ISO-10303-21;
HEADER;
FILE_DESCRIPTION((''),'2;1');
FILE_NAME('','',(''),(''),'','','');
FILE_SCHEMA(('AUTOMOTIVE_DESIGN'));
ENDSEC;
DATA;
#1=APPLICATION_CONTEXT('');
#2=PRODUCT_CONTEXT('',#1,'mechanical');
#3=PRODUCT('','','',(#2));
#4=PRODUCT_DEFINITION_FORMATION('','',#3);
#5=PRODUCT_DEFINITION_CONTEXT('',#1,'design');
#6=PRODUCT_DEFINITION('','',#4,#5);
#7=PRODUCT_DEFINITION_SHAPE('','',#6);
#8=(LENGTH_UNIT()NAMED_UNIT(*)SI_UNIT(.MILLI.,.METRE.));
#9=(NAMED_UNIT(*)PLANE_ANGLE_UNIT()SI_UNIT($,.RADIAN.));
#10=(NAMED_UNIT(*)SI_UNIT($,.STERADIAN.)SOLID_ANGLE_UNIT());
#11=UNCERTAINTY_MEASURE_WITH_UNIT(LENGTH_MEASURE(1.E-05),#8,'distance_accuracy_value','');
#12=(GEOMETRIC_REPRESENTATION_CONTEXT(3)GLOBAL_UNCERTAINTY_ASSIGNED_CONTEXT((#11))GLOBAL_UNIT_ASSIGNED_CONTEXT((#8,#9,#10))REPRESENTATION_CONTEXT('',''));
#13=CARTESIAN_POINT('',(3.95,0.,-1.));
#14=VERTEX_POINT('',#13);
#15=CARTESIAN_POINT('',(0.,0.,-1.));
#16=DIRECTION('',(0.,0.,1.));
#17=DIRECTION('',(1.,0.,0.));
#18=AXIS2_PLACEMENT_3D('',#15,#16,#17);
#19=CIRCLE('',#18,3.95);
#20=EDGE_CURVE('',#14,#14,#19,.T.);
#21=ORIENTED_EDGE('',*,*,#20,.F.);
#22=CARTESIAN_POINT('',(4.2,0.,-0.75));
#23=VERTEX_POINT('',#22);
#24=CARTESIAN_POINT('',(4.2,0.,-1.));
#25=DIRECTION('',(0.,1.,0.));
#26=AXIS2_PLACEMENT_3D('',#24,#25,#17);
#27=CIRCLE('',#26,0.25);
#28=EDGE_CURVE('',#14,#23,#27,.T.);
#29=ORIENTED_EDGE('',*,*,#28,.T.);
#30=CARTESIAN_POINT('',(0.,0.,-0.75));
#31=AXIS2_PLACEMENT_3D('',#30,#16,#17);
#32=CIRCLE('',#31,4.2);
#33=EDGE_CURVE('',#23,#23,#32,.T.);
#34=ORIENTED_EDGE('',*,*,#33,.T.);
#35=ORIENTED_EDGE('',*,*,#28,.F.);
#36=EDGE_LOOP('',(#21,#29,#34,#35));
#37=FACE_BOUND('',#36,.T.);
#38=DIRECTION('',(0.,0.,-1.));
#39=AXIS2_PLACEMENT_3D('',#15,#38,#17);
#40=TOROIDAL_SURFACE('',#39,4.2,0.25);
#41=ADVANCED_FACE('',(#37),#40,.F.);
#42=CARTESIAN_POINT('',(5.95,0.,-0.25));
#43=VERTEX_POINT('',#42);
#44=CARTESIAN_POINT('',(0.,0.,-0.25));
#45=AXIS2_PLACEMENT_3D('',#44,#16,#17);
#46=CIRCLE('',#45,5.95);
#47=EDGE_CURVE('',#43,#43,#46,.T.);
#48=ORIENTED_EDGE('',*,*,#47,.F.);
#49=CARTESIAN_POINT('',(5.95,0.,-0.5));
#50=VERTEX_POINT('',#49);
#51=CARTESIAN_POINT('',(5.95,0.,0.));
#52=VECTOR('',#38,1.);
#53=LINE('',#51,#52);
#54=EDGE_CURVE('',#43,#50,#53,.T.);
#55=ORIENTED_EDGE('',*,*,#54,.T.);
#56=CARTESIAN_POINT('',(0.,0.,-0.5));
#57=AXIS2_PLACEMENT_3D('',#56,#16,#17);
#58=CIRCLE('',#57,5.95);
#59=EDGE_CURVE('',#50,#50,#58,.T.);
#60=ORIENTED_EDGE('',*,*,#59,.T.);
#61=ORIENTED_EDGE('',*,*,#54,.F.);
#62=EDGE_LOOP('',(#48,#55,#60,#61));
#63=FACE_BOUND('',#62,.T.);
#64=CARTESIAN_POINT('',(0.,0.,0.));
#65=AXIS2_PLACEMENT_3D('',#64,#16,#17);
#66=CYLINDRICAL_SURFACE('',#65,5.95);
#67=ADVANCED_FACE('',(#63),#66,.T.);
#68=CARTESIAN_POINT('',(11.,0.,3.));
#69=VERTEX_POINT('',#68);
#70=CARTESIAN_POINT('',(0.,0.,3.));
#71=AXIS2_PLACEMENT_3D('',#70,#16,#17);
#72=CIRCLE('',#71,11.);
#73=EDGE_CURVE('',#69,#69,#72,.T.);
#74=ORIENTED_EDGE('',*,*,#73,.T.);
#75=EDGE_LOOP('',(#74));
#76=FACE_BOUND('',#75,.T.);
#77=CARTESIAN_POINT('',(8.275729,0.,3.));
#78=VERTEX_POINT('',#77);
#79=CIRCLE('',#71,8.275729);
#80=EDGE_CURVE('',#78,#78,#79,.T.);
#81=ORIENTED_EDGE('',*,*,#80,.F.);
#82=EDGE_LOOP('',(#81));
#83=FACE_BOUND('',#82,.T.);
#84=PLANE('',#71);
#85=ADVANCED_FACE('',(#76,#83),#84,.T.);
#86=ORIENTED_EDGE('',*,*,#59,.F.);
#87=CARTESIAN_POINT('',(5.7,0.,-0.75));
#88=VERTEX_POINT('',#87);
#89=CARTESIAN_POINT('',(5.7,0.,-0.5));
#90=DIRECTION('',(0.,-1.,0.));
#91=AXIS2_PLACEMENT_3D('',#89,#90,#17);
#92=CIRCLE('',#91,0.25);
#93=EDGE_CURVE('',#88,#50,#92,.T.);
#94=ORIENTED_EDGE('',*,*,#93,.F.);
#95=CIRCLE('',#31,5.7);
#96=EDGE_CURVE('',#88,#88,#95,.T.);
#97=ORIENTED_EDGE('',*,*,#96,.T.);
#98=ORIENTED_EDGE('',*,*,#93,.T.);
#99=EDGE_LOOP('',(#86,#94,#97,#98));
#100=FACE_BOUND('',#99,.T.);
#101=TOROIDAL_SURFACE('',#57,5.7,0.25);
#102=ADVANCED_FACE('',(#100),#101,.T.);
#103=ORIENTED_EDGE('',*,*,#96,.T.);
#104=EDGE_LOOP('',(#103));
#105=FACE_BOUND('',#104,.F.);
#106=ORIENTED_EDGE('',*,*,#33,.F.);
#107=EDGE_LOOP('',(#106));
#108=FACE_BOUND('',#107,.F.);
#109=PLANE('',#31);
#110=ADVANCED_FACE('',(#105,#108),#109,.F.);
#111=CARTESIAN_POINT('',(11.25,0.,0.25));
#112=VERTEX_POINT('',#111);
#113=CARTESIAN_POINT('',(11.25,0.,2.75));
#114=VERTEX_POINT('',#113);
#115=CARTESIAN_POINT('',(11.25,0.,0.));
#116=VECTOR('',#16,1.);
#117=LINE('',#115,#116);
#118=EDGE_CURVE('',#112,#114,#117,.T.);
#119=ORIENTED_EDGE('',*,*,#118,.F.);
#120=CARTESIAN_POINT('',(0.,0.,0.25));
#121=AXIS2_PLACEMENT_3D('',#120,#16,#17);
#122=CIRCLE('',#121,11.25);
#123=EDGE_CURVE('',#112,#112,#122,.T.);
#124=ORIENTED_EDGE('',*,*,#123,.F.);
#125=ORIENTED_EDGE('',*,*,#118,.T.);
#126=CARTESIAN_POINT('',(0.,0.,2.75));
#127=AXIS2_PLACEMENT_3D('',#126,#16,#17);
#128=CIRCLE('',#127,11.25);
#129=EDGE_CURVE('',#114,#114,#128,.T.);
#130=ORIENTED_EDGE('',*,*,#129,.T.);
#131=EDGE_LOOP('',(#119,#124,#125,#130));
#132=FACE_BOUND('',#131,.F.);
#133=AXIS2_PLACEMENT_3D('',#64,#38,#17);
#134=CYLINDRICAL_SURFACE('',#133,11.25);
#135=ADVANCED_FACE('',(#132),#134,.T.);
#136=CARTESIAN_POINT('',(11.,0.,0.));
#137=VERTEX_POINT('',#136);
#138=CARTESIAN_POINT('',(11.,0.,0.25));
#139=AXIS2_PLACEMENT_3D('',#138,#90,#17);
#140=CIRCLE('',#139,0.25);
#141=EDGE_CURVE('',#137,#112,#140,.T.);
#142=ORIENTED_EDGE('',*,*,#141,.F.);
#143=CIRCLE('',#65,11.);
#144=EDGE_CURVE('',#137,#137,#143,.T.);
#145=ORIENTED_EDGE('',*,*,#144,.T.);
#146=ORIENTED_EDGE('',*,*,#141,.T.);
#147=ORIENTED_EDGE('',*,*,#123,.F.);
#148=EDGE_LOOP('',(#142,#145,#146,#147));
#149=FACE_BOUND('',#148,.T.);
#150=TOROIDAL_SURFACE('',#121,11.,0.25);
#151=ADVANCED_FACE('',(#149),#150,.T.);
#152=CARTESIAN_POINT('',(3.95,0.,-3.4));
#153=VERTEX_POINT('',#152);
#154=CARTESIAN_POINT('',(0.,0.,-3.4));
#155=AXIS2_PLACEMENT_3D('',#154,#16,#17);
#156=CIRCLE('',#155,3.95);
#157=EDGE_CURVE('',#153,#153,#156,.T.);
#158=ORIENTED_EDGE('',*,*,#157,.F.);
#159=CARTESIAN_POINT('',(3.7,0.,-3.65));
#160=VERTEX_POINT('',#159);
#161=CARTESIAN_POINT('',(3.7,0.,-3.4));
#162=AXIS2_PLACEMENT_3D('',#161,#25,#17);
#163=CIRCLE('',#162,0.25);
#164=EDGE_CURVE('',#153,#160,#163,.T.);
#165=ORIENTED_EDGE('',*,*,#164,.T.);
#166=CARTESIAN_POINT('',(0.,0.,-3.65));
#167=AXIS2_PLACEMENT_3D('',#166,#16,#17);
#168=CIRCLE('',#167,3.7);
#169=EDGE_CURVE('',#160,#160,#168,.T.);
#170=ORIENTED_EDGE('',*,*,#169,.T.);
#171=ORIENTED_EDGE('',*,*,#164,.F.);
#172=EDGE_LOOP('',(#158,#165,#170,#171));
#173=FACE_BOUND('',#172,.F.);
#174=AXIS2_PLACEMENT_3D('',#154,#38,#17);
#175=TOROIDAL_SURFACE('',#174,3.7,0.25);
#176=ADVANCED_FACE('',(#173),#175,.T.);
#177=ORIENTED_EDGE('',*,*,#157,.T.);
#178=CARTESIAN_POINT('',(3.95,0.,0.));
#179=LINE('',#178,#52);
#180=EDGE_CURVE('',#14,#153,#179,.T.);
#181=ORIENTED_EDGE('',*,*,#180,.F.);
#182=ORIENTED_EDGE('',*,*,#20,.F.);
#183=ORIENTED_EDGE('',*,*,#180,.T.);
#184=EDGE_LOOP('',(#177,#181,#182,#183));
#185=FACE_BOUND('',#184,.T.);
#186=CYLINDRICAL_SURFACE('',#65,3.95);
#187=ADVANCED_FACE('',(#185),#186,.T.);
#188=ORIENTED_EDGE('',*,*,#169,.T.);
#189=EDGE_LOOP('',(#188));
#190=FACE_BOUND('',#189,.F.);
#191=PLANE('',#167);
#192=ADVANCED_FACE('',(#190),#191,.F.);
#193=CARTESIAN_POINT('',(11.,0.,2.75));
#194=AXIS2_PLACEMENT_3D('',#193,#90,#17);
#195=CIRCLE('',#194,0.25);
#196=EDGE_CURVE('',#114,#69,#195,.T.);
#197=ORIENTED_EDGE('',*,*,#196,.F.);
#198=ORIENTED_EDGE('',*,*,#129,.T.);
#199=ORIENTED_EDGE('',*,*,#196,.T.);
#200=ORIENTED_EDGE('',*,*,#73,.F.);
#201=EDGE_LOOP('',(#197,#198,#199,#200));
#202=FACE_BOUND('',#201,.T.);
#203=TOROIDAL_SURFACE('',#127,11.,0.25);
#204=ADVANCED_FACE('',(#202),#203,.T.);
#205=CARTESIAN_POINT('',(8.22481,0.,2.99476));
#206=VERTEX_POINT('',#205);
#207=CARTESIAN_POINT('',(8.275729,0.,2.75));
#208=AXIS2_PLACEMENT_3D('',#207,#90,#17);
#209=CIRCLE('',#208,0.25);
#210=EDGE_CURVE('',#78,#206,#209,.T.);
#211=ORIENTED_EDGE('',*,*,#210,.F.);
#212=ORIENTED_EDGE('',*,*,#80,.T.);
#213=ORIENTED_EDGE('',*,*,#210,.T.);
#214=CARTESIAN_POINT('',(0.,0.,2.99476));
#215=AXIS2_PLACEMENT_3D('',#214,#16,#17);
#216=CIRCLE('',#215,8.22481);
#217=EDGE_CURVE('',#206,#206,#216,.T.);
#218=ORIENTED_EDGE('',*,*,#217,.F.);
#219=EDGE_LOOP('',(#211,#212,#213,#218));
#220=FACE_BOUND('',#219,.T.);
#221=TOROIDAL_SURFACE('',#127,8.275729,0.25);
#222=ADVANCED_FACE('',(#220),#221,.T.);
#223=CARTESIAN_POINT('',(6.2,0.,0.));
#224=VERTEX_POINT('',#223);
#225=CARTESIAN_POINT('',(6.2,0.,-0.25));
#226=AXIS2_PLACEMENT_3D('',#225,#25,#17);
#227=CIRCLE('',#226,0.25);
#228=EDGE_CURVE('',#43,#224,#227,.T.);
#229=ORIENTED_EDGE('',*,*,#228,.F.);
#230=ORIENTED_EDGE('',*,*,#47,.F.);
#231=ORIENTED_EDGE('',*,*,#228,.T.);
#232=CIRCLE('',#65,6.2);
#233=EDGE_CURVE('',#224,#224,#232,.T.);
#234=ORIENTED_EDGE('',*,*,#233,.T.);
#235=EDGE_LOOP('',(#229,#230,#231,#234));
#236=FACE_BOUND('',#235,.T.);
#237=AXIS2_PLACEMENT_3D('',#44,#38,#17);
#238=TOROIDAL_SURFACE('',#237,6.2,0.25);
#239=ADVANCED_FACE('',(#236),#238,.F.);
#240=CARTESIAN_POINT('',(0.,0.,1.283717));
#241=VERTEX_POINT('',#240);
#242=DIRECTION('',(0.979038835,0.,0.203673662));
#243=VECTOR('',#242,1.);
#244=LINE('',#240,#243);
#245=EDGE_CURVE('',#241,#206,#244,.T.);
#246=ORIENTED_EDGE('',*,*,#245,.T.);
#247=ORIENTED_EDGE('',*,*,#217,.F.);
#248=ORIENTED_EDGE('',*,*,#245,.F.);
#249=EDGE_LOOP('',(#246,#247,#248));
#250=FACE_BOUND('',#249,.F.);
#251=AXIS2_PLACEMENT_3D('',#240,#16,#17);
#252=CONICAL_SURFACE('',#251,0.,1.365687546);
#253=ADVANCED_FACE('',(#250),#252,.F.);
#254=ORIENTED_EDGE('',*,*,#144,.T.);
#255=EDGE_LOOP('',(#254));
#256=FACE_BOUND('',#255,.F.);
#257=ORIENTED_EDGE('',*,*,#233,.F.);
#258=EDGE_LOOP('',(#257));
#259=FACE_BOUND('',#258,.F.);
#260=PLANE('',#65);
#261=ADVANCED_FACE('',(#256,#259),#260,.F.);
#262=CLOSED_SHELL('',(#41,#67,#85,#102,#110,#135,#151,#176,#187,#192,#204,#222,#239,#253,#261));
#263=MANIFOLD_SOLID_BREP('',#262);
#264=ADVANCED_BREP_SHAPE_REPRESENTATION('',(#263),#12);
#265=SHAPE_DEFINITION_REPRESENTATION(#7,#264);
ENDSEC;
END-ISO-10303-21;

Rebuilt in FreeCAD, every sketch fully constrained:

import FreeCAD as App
import Part
import Sketcher
Q = App.Units.Quantity


def edges_at(feature, points):
    """Names of the edges that pass closest to the given points."""
    edges = feature.Shape.Edges
    near = lambda p: min(range(len(edges)), key=lambda i: edges[i].distToShape(Part.Vertex(*p))[0])
    return sorted({f"Edge{near(p) + 1}" for p in points})


def add_polygon(sketch, points):
    """Adds a closed chain of lines whose ends are joined by coincident constraints."""
    first, n = sketch.GeometryCount, len(points)
    for a, b in zip(points, points[1:] + points[:1]):
        sketch.addGeometry(Part.LineSegment(App.Vector(*a, 0), App.Vector(*b, 0)), False)
    for i in range(n):
        sketch.addConstraint(Sketcher.Constraint("Coincident", first + i, 2, first + (i + 1) % n, 1))

doc = App.newDocument("Part")
body = doc.addObject("PartDesign::Body", "Body")

# Sketch on XY plane
sketch1 = body.newObject("Sketcher::SketchObject", "Sketch")
sketch1.AttachmentSupport = (doc.getObject("XY_Plane"), [""])
sketch1.MapMode = "FlatFace"
sketch1.addGeometry(Part.Circle(App.Vector(0, 0, 0), App.Vector(0, 0, 1), 11), False)
sketch1.addConstraint(Sketcher.Constraint("Coincident", 0, 3, -1, 1))
sketch1.addConstraint(Sketcher.Constraint("Diameter", 0, Q("22.5 mm")))
pad1 = body.newObject("PartDesign::Pad", "Pad")
pad1.Profile = sketch1
pad1.Length = 3

# Sketch on XY plane
sketch2 = body.newObject("Sketcher::SketchObject", "Sketch001")
sketch2.AttachmentSupport = (doc.getObject("XY_Plane"), [""])
sketch2.MapMode = "FlatFace"
sketch2.addGeometry(Part.Circle(App.Vector(0, 0, 0), App.Vector(0, 0, 1), 6), False)
sketch2.addConstraint(Sketcher.Constraint("Coincident", 0, 3, -1, 1))
sketch2.addConstraint(Sketcher.Constraint("Diameter", 0, Q("11.9 mm")))
pad2 = body.newObject("PartDesign::Pad", "Pad001")
pad2.Profile = sketch2
pad2.Length = 0.75
pad2.Reversed = True

# Sketch on XY plane
sketch3 = body.newObject("Sketcher::SketchObject", "Sketch002")
sketch3.AttachmentSupport = (doc.getObject("XY_Plane"), [""])
sketch3.MapMode = "FlatFace"
sketch3.addGeometry(Part.Circle(App.Vector(0, 0, 0), App.Vector(0, 0, 1), 4), False)
sketch3.addConstraint(Sketcher.Constraint("Coincident", 0, 3, -1, 1))
sketch3.addConstraint(Sketcher.Constraint("Diameter", 0, Q("7.9 mm")))
pad3 = body.newObject("PartDesign::Pad", "Pad002")
pad3.Profile = sketch3
pad3.Length = 3.65
pad3.Reversed = True

# Sketch on XZ plane
sketch4 = body.newObject("Sketcher::SketchObject", "Sketch003")
sketch4.AttachmentSupport = (doc.getObject("XZ_Plane"), [""])
sketch4.MapMode = "FlatFace"
add_polygon(sketch4, [(0, 3), (0, 1.3), (8.2, 3)])  # lines 0-2
sketch4.addConstraint(Sketcher.Constraint("Vertical", 0))
sketch4.addConstraint(Sketcher.Constraint("Horizontal", 2))
sketch4.addConstraint(Sketcher.Constraint("PointOnObject", 0, 2, -2))
sketch4.addConstraint(Sketcher.Constraint("DistanceY", -1, 1, 1, 2, Q("3 mm")))
sketch4.addConstraint(Sketcher.Constraint("DistanceX", 2, 2, 2, 1, Q("8.25 mm")))
sketch4.addConstraint(Sketcher.Constraint("DistanceY", 0, 2, 0, 1, Q("1.716283 mm")))
groove = body.newObject("PartDesign::Groove", "Groove")
groove.Profile = sketch4
groove.ReferenceAxis = (sketch4, ["V_Axis"])
groove.Angle = 360
doc.recompute()

fillet = body.newObject("PartDesign::Fillet", "Fillet")
fillet.Base = (groove, edges_at(groove, [
    (-8.25, 0, 3),
    (-11.25, 0, 3),
    (-11.25, 0, 0),
    (-3.95, 0, -3.65),
    (-3.95, 0, -0.75),
    (-5.95, 0, -0.75),
    (5.95, 0, -0.375),
    (-5.95, 0, 0),
]))
fillet.Radius = 0.25

doc.recompute()
